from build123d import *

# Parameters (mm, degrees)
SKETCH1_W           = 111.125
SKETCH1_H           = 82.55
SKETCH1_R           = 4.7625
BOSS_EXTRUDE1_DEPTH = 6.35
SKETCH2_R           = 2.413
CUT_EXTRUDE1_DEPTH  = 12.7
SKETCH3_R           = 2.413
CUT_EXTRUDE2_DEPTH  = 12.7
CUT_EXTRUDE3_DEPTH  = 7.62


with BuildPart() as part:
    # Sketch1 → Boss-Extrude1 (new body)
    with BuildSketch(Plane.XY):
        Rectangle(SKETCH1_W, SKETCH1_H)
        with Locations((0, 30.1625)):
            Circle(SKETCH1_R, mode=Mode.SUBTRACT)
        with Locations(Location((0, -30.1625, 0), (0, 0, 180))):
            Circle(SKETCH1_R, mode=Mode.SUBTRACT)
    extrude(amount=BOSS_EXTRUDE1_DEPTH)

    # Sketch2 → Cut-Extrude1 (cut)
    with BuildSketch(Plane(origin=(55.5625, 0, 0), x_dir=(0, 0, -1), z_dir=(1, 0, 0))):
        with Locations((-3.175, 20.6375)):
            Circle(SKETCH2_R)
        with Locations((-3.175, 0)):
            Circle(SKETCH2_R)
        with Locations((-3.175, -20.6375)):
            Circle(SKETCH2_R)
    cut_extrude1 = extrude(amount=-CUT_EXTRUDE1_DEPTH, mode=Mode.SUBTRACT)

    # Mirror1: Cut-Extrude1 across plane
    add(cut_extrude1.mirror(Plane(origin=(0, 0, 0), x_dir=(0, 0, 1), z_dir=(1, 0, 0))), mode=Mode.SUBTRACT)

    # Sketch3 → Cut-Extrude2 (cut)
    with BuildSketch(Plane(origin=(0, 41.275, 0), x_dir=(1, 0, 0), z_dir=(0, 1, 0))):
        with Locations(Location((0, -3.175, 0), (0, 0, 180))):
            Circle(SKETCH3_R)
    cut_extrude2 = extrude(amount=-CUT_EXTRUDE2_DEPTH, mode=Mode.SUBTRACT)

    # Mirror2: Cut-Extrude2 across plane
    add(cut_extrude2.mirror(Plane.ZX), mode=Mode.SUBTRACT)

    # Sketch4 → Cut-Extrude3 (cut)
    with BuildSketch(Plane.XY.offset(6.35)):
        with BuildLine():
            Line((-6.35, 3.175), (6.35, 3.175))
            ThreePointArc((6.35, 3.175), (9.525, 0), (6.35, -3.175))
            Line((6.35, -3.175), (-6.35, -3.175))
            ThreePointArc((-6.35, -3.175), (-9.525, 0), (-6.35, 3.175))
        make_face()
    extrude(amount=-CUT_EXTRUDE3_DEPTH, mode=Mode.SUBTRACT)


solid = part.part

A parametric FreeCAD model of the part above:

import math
import FreeCAD as App
import Part
import Sketcher

V = App.Vector
Q = App.Units.Quantity


def add_polygon(sketch, points):
    """Adds a closed chain of lines whose ends are joined by coincident constraints."""
    first, n = sketch.GeometryCount, len(points)
    for a, b in zip(points, points[1:] + points[:1]):
        sketch.addGeometry(Part.LineSegment(App.Vector(*a, 0), App.Vector(*b, 0)), False)
    for i in range(n):
        sketch.addConstraint(Sketcher.Constraint("Coincident", first + i, 2, first + (i + 1) % n, 1))

doc = App.newDocument("Part")
body = doc.addObject("PartDesign::Body", "Body")

# Sketch on XY plane
sketch1 = body.newObject("Sketcher::SketchObject", "Sketch")
sketch1.AttachmentSupport = (doc.getObject("XY_Plane"), [""])
sketch1.MapMode = "FlatFace"
add_polygon(sketch1, [(-55.6, 41.3), (-55.6, -41.3), (55.6, -41.3), (55.6, 41.3)])  # lines 0-3
sketch1.addGeometry(Part.Circle(V(0, -30.2, 0), V(0, 0, 1), 4.8), False)  # 4
sketch1.addGeometry(Part.Circle(V(0, 30.2, 0), V(0, 0, 1), 4.8), False)  # 5
sketch1.addConstraint(Sketcher.Constraint("Vertical", 0))
sketch1.addConstraint(Sketcher.Constraint("Horizontal", 1))
sketch1.addConstraint(Sketcher.Constraint("Vertical", 2))
sketch1.addConstraint(Sketcher.Constraint("Horizontal", 3))
sketch1.addConstraint(Sketcher.Constraint("Equal", 4, 5))
sketch1.addConstraint(Sketcher.Constraint("Symmetric", 4, 3, 5, 3, -1, 1))
sketch1.addConstraint(Sketcher.Constraint("Symmetric", 0, 2, 2, 2, -1, 1))
sketch1.addConstraint(Sketcher.Constraint("PointOnObject", 4, 3, -2))
sketch1.addConstraint(Sketcher.Constraint("Diameter", 4, Q("0.375 in")))
sketch1.addConstraint(Sketcher.Constraint("DistanceY", 0, 2, 0, 1, Q("3.25 in")))
sketch1.addConstraint(Sketcher.Constraint("DistanceX", 1, 1, 1, 2, Q("4.375 in")))
sketch1.addConstraint(Sketcher.Constraint("DistanceY", 4, 3, -1, 1, Q("1.1875 in")))
pad1 = body.newObject("PartDesign::Pad", "Pad")
pad1.Profile = sketch1
pad1.Length = Q("0.25 in")

# Sketch on YZ plane
sketch2 = body.newObject("Sketcher::SketchObject", "Sketch001")
sketch2.AttachmentSupport = (doc.getObject("YZ_Plane"), [""])
sketch2.MapMode = "FlatFace"
sketch2.AttachmentOffset = App.Placement(V(0, 0, 2.1875 * 25.4), App.Rotation())
sketch2.addGeometry(Part.Circle(V(20.6, 3.2, 0), V(0, 0, 1), 2.4), False)
sketch2.addGeometry(Part.Circle(V(0, 3.2, 0), V(0, 0, 1), 2.4), False)
sketch2.addGeometry(Part.Circle(V(-20.6, 3.2, 0), V(0, 0, 1), 2.4), False)
sketch2.addConstraint(Sketcher.Constraint("Equal", 0, 1))
sketch2.addConstraint(Sketcher.Constraint("Equal", 1, 2))
sketch2.addConstraint(Sketcher.Constraint("Symmetric", 0, 3, 2, 3, -2))
sketch2.addConstraint(Sketcher.Constraint("PointOnObject", 1, 3, -2))
sketch2.addConstraint(Sketcher.Constraint("Horizontal", 0, 3, 1, 3))
sketch2.addConstraint(Sketcher.Constraint("Diameter", 0, Q("0.19 in")))
sketch2.addConstraint(Sketcher.Constraint("DistanceX", -1, 1, 0, 3, Q("0.8125 in")))
sketch2.addConstraint(Sketcher.Constraint("DistanceY", -1, 1, 0, 3, Q("0.125 in")))
pocket1 = body.newObject("PartDesign::Pocket", "Pocket")
pocket1.Profile = sketch2
pocket1.Length = Q("0.5 in")
doc.recompute()

mirrored = body.newObject("PartDesign::Mirrored", "Mirrored")
mirrored.Originals = [pocket1]
mirrored.MirrorPlane = (doc.getObject("YZ_Plane"), [""])
body.Tip = mirrored

# Sketch on XZ plane
sketch3 = body.newObject("Sketcher::SketchObject", "Sketch002")
sketch3.AttachmentSupport = (doc.getObject("XZ_Plane"), [""])
sketch3.MapMode = "FlatFace"
sketch3.AttachmentOffset = App.Placement(V(0, 0, -1.625 * 25.4), App.Rotation())
sketch3.addGeometry(Part.Circle(V(0, 3.2, 0), V(0, 0, 1), 2.4), False)
sketch3.addConstraint(Sketcher.Constraint("PointOnObject", 0, 3, -2))
sketch3.addConstraint(Sketcher.Constraint("Diameter", 0, Q("0.19 in")))
sketch3.addConstraint(Sketcher.Constraint("DistanceY", -1, 1, 0, 3, Q("0.125 in")))
pocket2 = body.newObject("PartDesign::Pocket", "Pocket001")
pocket2.Profile = sketch3
pocket2.Length = Q("0.5 in")
pocket2.Reversed = True
doc.recompute()

mirrored2 = body.newObject("PartDesign::Mirrored", "Mirrored001")
mirrored2.Originals = [pocket2]
mirrored2.MirrorPlane = (doc.getObject("XZ_Plane"), [""])
body.Tip = mirrored2

# Sketch on XY plane
sketch4 = body.newObject("Sketcher::SketchObject", "Sketch003")
sketch4.AttachmentSupport = (doc.getObject("XY_Plane"), [""])
sketch4.MapMode = "FlatFace"
sketch4.AttachmentOffset = App.Placement(V(0, 0, 0.25 * 25.4), App.Rotation())
sketch4.addGeometry(Part.LineSegment(V(6.3, 3.2, 0), V(-6.3, 3.2, 0)), False)
sketch4.addGeometry(Part.ArcOfCircle(Part.Circle(V(-6.3, 0, 0), V(0, 0, 1), 3.2), math.radians(90), math.radians(270)), False)
sketch4.addGeometry(Part.LineSegment(V(-6.3, -3.2, 0), V(6.3, -3.2, 0)), False)
sketch4.addGeometry(Part.ArcOfCircle(Part.Circle(V(6.3, 0, 0), V(0, 0, 1), 3.2), math.radians(-90), math.radians(90)), False)
sketch4.addConstraint(Sketcher.Constraint("Tangent", 0, 2, 1, 1))
sketch4.addConstraint(Sketcher.Constraint("Tangent", 1, 2, 2, 1))
sketch4.addConstraint(Sketcher.Constraint("Tangent", 2, 2, 3, 1))
sketch4.addConstraint(Sketcher.Constraint("Tangent", 3, 2, 0, 1))
sketch4.addConstraint(Sketcher.Constraint("Horizontal", 0))
sketch4.addConstraint(Sketcher.Constraint("Horizontal", 2))
sketch4.addConstraint(Sketcher.Constraint("Symmetric", 1, 3, 3, 3, -1, 1))
sketch4.addConstraint(Sketcher.Constraint("DistanceX", 0, 2, 0, 1, Q("0.5 in")))
sketch4.addConstraint(Sketcher.Constraint("Radius", 1, Q("0.125 in")))
pocket3 = body.newObject("PartDesign::Pocket", "Pocket002")
pocket3.Profile = sketch4
pocket3.Length = Q("0.3 in")

doc.recompute()
